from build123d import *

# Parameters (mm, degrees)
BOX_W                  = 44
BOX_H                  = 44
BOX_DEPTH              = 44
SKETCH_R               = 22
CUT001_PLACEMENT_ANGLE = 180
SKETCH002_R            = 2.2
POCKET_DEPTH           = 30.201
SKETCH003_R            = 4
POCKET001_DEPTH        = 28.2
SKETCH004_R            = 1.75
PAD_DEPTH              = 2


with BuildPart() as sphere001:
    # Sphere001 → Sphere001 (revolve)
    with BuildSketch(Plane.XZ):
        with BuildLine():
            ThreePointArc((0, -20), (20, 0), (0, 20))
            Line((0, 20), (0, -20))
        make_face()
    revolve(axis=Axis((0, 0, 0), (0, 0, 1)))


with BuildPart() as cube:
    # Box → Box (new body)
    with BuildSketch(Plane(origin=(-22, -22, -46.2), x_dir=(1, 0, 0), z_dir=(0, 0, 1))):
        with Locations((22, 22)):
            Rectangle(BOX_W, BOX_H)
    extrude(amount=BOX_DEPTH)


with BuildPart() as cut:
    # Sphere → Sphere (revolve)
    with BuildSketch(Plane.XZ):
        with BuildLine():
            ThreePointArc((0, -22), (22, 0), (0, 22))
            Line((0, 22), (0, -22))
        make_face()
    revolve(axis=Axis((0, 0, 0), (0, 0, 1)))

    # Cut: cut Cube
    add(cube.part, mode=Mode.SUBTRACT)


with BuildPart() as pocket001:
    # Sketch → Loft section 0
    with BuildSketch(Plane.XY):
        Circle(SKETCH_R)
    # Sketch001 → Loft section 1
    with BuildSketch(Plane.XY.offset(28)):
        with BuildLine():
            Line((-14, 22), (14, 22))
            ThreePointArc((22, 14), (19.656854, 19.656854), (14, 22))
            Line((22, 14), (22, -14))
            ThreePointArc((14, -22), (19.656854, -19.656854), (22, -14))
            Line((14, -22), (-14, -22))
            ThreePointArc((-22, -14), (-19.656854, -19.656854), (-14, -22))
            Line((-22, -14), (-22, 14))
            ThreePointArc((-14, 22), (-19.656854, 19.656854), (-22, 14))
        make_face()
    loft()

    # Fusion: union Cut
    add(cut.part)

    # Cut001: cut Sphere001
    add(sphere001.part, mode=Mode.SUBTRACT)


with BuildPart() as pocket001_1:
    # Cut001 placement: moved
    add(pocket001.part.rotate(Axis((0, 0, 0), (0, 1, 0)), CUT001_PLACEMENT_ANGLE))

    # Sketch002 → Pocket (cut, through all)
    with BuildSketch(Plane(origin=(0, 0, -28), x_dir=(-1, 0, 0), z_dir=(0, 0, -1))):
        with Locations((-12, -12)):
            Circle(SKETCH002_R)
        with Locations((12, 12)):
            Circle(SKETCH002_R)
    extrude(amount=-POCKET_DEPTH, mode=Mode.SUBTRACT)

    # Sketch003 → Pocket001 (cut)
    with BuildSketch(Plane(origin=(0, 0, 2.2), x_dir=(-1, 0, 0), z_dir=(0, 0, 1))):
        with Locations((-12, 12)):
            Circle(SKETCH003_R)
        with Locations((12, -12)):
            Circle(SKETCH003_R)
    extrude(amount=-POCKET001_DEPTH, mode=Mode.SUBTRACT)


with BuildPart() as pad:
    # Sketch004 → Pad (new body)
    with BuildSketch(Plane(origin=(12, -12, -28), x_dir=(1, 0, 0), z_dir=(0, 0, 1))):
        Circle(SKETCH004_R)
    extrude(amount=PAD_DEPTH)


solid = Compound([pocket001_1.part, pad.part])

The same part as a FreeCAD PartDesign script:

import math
import FreeCAD as App
import Part
import Sketcher
from FreeCAD import Vector

doc = App.newDocument("Part")
body = doc.addObject("PartDesign::Body", "Body")

sketch1 = body.newObject("Sketcher::SketchObject", "Sketch")
sketch1.AttachmentSupport = (doc.getObject("XZ_Plane"), [""])
sketch1.MapMode = "FlatFace"
sketch1.addGeometry(Part.ArcOfCircle(Part.Circle(Vector(0, 0, 0), Vector(0, 0, 1), 20), math.radians(-90), math.radians(90)), False)
sketch1.addGeometry(Part.LineSegment(Vector(0, 20, 0), Vector(0, -20, 0)), False)
sketch1.addConstraint(Sketcher.Constraint("Coincident", 0, 1, 1, 2))
sketch1.addConstraint(Sketcher.Constraint("Coincident", 1, 1, 0, 2))
sketch1.addConstraint(Sketcher.Constraint("Vertical", 1))
sketch1.addConstraint(Sketcher.Constraint("Coincident", 0, 3, -1, 1))
sketch1.addConstraint(Sketcher.Constraint("PointOnObject", 0, 1, -2))
sketch1.addConstraint(Sketcher.Constraint("Radius", 0, 20.0))
revolution = body.newObject("PartDesign::Revolution", "Revolution")
revolution.Profile = sketch1
revolution.ReferenceAxis = (sketch1, ["V_Axis"])
revolution.Angle = 360
body2 = doc.addObject("PartDesign::Body", "Body001")

sketch2 = body2.newObject("Sketcher::SketchObject", "Sketch001")
sketch2.AttachmentSupport = (doc.getObject("XY_Plane001"), [""])
sketch2.MapMode = "FlatFace"
sketch2.AttachmentOffset = App.Placement(Vector(0, 0, -46.2), App.Rotation())
sketch2.addGeometry(Part.LineSegment(Vector(-22, 22, 0), Vector(-22, -22, 0)), False)
sketch2.addGeometry(Part.LineSegment(Vector(-22, -22, 0), Vector(22, -22, 0)), False)
sketch2.addGeometry(Part.LineSegment(Vector(22, -22, 0), Vector(22, 22, 0)), False)
sketch2.addGeometry(Part.LineSegment(Vector(22, 22, 0), Vector(-22, 22, 0)), False)
sketch2.addConstraint(Sketcher.Constraint("Coincident", 0, 2, 1, 1))
sketch2.addConstraint(Sketcher.Constraint("Coincident", 1, 2, 2, 1))
sketch2.addConstraint(Sketcher.Constraint("Coincident", 2, 2, 3, 1))
sketch2.addConstraint(Sketcher.Constraint("Coincident", 3, 2, 0, 1))
sketch2.addConstraint(Sketcher.Constraint("Vertical", 0))
sketch2.addConstraint(Sketcher.Constraint("Horizontal", 1))
sketch2.addConstraint(Sketcher.Constraint("Vertical", 2))
sketch2.addConstraint(Sketcher.Constraint("Horizontal", 3))
sketch2.addConstraint(Sketcher.Constraint("Symmetric", 0, 2, 2, 2, -1, 1))
sketch2.addConstraint(Sketcher.Constraint("Equal", 3, 0))
sketch2.addConstraint(Sketcher.Constraint("DistanceX", 1, 1, 1, 2, 44.0))
pad1 = body2.newObject("PartDesign::Pad", "Pad")
pad1.Profile = sketch2
pad1.Length = 44
body3 = doc.addObject("PartDesign::Body", "Body002")

sketch3 = body3.newObject("Sketcher::SketchObject", "Sketch002")
sketch3.AttachmentSupport = (doc.getObject("XZ_Plane002"), [""])
sketch3.MapMode = "FlatFace"
sketch3.addGeometry(Part.ArcOfCircle(Part.Circle(Vector(0, 0, 0), Vector(0, 0, 1), 22), math.radians(-90), math.radians(90)), False)
sketch3.addGeometry(Part.LineSegment(Vector(0, 22, 0), Vector(0, -22, 0)), False)
sketch3.addConstraint(Sketcher.Constraint("Coincident", 0, 1, 1, 2))
sketch3.addConstraint(Sketcher.Constraint("Coincident", 1, 1, 0, 2))
sketch3.addConstraint(Sketcher.Constraint("Vertical", 1))
sketch3.addConstraint(Sketcher.Constraint("Coincident", 0, 3, -1, 1))
sketch3.addConstraint(Sketcher.Constraint("PointOnObject", 0, 1, -2))
sketch3.addConstraint(Sketcher.Constraint("Radius", 0, 22.0))
revolution2 = body3.newObject("PartDesign::Revolution", "Revolution001")
revolution2.Profile = sketch3
revolution2.ReferenceAxis = (sketch3, ["V_Axis"])
revolution2.Angle = 360
doc.recompute()

boolean = body3.newObject("PartDesign::Boolean", "Boolean")
boolean.Type = "Cut"
boolean.addObjects([body2])
body4 = doc.addObject("PartDesign::Body", "Body003")

sketch4 = body4.newObject("Sketcher::SketchObject", "Sketch003")
sketch4.AttachmentSupport = (doc.getObject("XY_Plane003"), [""])
sketch4.MapMode = "FlatFace"
sketch4.addGeometry(Part.Circle(Vector(0, 0, 0), Vector(0, 0, 1), 22), False)
sketch4.addConstraint(Sketcher.Constraint("Coincident", 0, 3, -1, 1))
sketch4.addConstraint(Sketcher.Constraint("Diameter", 0, 44.0))

sketch5 = body4.newObject("Sketcher::SketchObject", "Sketch004")
sketch5.AttachmentSupport = (doc.getObject("XY_Plane003"), [""])
sketch5.MapMode = "FlatFace"
sketch5.AttachmentOffset = App.Placement(Vector(0, 0, 28), App.Rotation())
sketch5.addGeometry(Part.LineSegment(Vector(14, 22, 0), Vector(-14, 22, 0)), False)
sketch5.addGeometry(Part.ArcOfCircle(Part.Circle(Vector(-14, 14, 0), Vector(0, 0, 1), 8), math.radians(90), math.radians(180)), False)
sketch5.addGeometry(Part.LineSegment(Vector(-22, 14, 0), Vector(-22, -14, 0)), False)
sketch5.addGeometry(Part.ArcOfCircle(Part.Circle(Vector(-14, -14, 0), Vector(0, 0, 1), 8), math.radians(-180), math.radians(-90)), False)
sketch5.addGeometry(Part.LineSegment(Vector(-14, -22, 0), Vector(14, -22, 0)), False)
sketch5.addGeometry(Part.ArcOfCircle(Part.Circle(Vector(14, -14, 0), Vector(0, 0, 1), 8), math.radians(-90), math.radians(0)), False)
sketch5.addGeometry(Part.LineSegment(Vector(22, -14, 0), Vector(22, 14, 0)), False)
sketch5.addGeometry(Part.ArcOfCircle(Part.Circle(Vector(14, 14, 0), Vector(0, 0, 1), 8), math.radians(0), math.radians(90)), False)
sketch5.addConstraint(Sketcher.Constraint("Tangent", 0, 2, 1, 1))
sketch5.addConstraint(Sketcher.Constraint("Tangent", 1, 2, 2, 1))
sketch5.addConstraint(Sketcher.Constraint("Tangent", 2, 2, 3, 1))
sketch5.addConstraint(Sketcher.Constraint("Tangent", 3, 2, 4, 1))
sketch5.addConstraint(Sketcher.Constraint("Tangent", 4, 2, 5, 1))
sketch5.addConstraint(Sketcher.Constraint("Tangent", 5, 2, 6, 1))
sketch5.addConstraint(Sketcher.Constraint("Tangent", 6, 2, 7, 1))
sketch5.addConstraint(Sketcher.Constraint("Tangent", 7, 2, 0, 1))
sketch5.addConstraint(Sketcher.Constraint("Horizontal", 0))
sketch5.addConstraint(Sketcher.Constraint("Vertical", 2))
sketch5.addConstraint(Sketcher.Constraint("Horizontal", 4))
sketch5.addConstraint(Sketcher.Constraint("Vertical", 6))
sketch5.addConstraint(Sketcher.Constraint("Equal", 1, 3))
sketch5.addConstraint(Sketcher.Constraint("Equal", 3, 5))
sketch5.addConstraint(Sketcher.Constraint("Equal", 5, 7))
sketch5.addConstraint(Sketcher.Constraint("Symmetric", 1, 3, 5, 3, -1, 1))
sketch5.addConstraint(Sketcher.Constraint("Equal", 4, 2))
sketch5.addConstraint(Sketcher.Constraint("Radius", 1, 8.000001))
sketch5.addConstraint(Sketcher.Constraint("DistanceX", 0, 2, 0, 1, 28.0))

additiveloft = body4.newObject("PartDesign::AdditiveLoft", "AdditiveLoft")
additiveloft.Profile = sketch4
additiveloft.Sections = [sketch5]
doc.recompute()

boolean2 = body4.newObject("PartDesign::Boolean", "Boolean001")
boolean2.Type = "Fuse"
boolean2.addObjects([body3])
doc.recompute()

boolean3 = body4.newObject("PartDesign::Boolean", "Boolean002")
boolean3.Type = "Cut"
boolean3.addObjects([body])
body5 = doc.addObject("PartDesign::Body", "Body004")
doc.recompute()

body4.Placement = App.Placement(Vector(0, 0, 0), App.Rotation(Vector(0, 1, 0), 180))
boolean4 = body5.newObject("PartDesign::Boolean", "Boolean003")
boolean4.Type = "Fuse"
boolean4.addObjects([body4])

sketch6 = body5.newObject("Sketcher::SketchObject", "Sketch005")
sketch6.AttachmentSupport = (doc.getObject("XY_Plane004"), [""])
sketch6.MapMode = "FlatFace"
sketch6.AttachmentOffset = App.Placement(Vector(0, 0, -28), App.Rotation())
sketch6.addGeometry(Part.Circle(Vector(12, -12, 0), Vector(0, 0, 1), 2.2), False)
sketch6.addGeometry(Part.Circle(Vector(-12, 12, 0), Vector(0, 0, 1), 2.2), False)
sketch6.addConstraint(Sketcher.Constraint("Equal", 0, 1))
sketch6.addConstraint(Sketcher.Constraint("Symmetric", 0, 3, 1, 3, -1, 1))
sketch6.addConstraint(Sketcher.Constraint("Diameter", 0, 4.4))
sketch6.addConstraint(Sketcher.Constraint("DistanceX", -1, 1, 0, 3, 12.0))
sketch6.addConstraint(Sketcher.Constraint("DistanceY", 0, 3, -1, 1, 12.0))
pocket1 = body5.newObject("PartDesign::Pocket", "Pocket")
pocket1.Profile = sketch6
pocket1.Type = "ThroughAll"
pocket1.Reversed = True

sketch7 = body5.newObject("Sketcher::SketchObject", "Sketch006")
sketch7.AttachmentSupport = (doc.getObject("XY_Plane004"), [""])
sketch7.MapMode = "FlatFace"
sketch7.AttachmentOffset = App.Placement(Vector(0, 0, 2.2), App.Rotation())
sketch7.addGeometry(Part.Circle(Vector(12, -12, 0), Vector(0, 0, 1), 4), False)
sketch7.addGeometry(Part.Circle(Vector(-12, 12, 0), Vector(0, 0, 1), 4), False)
sketch7.addConstraint(Sketcher.Constraint("Equal", 0, 1))
sketch7.addConstraint(Sketcher.Constraint("Symmetric", 0, 3, 1, 3, -1, 1))
sketch7.addConstraint(Sketcher.Constraint("Diameter", 0, 8.0))
sketch7.addConstraint(Sketcher.Constraint("DistanceX", -1, 1, 0, 3, 12.0))
sketch7.addConstraint(Sketcher.Constraint("DistanceY", 0, 3, -1, 1, 12.0))
pocket2 = body5.newObject("PartDesign::Pocket", "Pocket001")
pocket2.Profile = sketch7
pocket2.Length = 28.2
body6 = doc.addObject("PartDesign::Body", "Body005")

sketch8 = body6.newObject("Sketcher::SketchObject", "Sketch007")
sketch8.AttachmentSupport = (doc.getObject("XY_Plane005"), [""])
sketch8.MapMode = "FlatFace"
sketch8.AttachmentOffset = App.Placement(Vector(0, 0, -28), App.Rotation())
sketch8.addGeometry(Part.Circle(Vector(12, -12, 0), Vector(0, 0, 1), 1.8), False)
sketch8.addConstraint(Sketcher.Constraint("Diameter", 0, 3.5))
sketch8.addConstraint(Sketcher.Constraint("DistanceX", -1, 1, 0, 3, 12.0))
sketch8.addConstraint(Sketcher.Constraint("DistanceY", 0, 3, -1, 1, 12.0))
pad2 = body6.newObject("PartDesign::Pad", "Pad001")
pad2.Profile = sketch8
pad2.Length = 2

doc.recompute()
